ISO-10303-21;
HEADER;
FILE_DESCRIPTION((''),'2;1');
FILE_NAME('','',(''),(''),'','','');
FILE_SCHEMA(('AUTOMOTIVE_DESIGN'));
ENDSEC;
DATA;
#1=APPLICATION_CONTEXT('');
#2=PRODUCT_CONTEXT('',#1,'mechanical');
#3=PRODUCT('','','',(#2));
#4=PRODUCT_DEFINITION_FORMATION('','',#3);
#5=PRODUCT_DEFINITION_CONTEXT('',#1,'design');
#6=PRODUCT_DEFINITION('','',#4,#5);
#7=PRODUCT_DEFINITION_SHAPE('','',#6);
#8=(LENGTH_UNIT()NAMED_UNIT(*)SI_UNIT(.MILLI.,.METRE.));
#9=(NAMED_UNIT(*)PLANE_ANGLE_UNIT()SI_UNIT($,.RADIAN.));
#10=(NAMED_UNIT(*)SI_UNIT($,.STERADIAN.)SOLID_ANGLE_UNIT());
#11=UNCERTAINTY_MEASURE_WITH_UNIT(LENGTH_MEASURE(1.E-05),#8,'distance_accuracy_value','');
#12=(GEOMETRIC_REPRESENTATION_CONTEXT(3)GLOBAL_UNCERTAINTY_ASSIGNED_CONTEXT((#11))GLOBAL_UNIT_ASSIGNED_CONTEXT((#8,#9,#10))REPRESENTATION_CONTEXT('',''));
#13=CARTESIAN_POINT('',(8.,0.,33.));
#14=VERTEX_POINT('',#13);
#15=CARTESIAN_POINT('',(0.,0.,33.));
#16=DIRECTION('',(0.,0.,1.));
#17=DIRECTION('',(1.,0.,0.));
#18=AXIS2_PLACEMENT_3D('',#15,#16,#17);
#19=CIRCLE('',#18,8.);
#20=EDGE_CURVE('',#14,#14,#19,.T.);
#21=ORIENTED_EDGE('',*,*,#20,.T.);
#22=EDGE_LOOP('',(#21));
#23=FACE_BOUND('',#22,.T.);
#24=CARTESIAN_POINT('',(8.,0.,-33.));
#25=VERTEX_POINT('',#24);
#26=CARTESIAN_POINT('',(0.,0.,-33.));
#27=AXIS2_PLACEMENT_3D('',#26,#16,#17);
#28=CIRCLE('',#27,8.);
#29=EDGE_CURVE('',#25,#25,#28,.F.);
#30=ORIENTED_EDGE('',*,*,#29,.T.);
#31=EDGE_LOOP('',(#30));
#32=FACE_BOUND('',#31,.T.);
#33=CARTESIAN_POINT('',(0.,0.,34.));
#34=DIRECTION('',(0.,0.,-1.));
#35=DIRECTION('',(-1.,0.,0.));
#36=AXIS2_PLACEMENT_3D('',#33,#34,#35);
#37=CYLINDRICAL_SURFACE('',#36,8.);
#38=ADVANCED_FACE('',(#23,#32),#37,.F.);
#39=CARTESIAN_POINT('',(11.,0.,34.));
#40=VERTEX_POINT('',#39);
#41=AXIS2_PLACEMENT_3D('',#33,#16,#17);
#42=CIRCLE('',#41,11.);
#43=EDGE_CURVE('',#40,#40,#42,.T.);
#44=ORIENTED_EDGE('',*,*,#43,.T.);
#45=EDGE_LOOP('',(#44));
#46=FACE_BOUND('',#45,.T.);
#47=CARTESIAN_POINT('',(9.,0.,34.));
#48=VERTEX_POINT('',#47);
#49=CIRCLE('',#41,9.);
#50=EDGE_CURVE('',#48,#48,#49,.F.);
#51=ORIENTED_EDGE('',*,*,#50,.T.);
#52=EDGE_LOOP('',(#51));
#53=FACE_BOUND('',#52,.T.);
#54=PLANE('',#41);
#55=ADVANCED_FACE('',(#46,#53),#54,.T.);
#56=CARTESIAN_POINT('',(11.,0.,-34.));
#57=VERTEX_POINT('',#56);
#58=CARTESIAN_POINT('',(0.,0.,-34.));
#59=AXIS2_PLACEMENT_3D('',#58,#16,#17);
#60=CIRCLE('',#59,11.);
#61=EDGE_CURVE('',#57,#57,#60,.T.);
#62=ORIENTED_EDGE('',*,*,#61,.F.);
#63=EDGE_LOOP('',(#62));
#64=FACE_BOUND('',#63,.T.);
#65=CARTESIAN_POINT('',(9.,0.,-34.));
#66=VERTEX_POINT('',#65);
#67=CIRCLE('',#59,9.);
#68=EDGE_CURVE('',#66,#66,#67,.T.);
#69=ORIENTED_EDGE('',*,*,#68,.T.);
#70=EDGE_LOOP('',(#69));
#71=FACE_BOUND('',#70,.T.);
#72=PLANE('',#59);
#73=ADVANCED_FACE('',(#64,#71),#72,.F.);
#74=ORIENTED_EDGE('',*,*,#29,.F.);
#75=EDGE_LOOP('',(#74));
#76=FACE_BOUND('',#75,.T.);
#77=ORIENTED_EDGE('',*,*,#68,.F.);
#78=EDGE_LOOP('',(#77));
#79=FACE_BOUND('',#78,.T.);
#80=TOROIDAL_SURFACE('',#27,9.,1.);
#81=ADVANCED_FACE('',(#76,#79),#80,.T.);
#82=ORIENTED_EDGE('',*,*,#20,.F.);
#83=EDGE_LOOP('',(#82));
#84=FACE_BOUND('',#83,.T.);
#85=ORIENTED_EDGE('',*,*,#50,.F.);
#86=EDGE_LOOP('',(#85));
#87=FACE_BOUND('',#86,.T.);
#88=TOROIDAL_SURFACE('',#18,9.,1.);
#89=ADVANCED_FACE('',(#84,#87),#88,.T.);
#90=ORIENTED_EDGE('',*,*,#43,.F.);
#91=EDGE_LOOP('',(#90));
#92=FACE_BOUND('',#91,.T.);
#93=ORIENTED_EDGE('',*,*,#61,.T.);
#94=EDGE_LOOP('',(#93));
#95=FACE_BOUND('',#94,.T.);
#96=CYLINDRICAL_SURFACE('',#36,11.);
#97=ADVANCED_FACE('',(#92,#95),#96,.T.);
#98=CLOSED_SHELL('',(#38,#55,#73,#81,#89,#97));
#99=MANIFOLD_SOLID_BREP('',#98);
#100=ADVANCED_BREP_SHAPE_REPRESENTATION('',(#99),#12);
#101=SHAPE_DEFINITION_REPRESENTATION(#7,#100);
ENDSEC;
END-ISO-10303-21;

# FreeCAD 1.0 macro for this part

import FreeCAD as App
import Part
import Sketcher

V = App.Vector


def edges_at(feature, points):
    """Names of the edges that pass closest to the given points."""
    edges = feature.Shape.Edges
    near = lambda p: min(range(len(edges)), key=lambda i: edges[i].distToShape(Part.Vertex(*p))[0])
    return sorted({f"Edge{near(p) + 1}" for p in points})

doc = App.newDocument("Part")
params = doc.addObject("Spreadsheet::Sheet", "Params")
for row, (alias, value) in enumerate([
    ("sketch1_diameter", "22 mm"),
    ("sketch1_diameter2", "16 mm"),
    ("pad1_length", "68 mm"),
    ("fillet_radius", "1 mm"),
], start=1):
    params.set(f"A{row}", alias)
    params.set(f"B{row}", "=" + value)
    params.setAlias(f"B{row}", alias)

body = doc.addObject("PartDesign::Body", "Body")

sketch1 = body.newObject("Sketcher::SketchObject", "Sketch")
sketch1.AttachmentSupport = (doc.getObject("XY_Plane"), [""])
sketch1.MapMode = "FlatFace"
sketch1.addGeometry(Part.Circle(V(0, 0, 0), V(0, 0, 1), 11), False)
sketch1.addGeometry(Part.Circle(V(0, 0, 0), V(0, 0, 1), 8), False)
sketch1.addConstraint(Sketcher.Constraint("Coincident", 0, 3, -1, 1))
sketch1.addConstraint(Sketcher.Constraint("Coincident", 1, 3, -1, 1))
sketch1.addConstraint(Sketcher.Constraint("Diameter", 0, 22.0))
sketch1.addConstraint(Sketcher.Constraint("Diameter", 1, 16.0))
sketch1.setExpression("Constraints[2]", "Params.sketch1_diameter")
sketch1.setExpression("Constraints[3]", "Params.sketch1_diameter2")
pad1 = body.newObject("PartDesign::Pad", "Pad")
pad1.Profile = sketch1
pad1.setExpression("Length", "Params.pad1_length")
pad1.Midplane = True
doc.recompute()

fillet = body.newObject("PartDesign::Fillet", "Fillet")
fillet.Base = (pad1, edges_at(pad1, [(-8, 0, -34), (-8, 0, 34)]))
fillet.setExpression("Radius", "Params.fillet_radius")

doc.recompute()
